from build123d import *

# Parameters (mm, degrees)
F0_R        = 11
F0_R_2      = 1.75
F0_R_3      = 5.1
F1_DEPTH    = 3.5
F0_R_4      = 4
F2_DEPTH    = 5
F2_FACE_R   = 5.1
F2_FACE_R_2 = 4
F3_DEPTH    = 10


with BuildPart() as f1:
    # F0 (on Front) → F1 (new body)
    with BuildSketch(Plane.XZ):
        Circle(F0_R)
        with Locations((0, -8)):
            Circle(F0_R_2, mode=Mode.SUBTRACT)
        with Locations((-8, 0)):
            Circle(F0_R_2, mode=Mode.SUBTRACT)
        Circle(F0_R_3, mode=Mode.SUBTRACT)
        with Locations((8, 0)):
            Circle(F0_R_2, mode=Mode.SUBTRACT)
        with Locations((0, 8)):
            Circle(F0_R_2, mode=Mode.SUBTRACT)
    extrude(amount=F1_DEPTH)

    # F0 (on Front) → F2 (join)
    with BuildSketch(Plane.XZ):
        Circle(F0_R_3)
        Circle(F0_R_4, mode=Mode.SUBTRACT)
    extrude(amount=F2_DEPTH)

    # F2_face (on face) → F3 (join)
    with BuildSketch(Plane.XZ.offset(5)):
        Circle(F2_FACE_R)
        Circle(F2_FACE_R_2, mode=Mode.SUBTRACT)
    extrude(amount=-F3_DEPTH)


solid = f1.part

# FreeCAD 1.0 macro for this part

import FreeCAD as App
import Part
import Sketcher
from FreeCAD import Vector

doc = App.newDocument("Part")
body = doc.addObject("PartDesign::Body", "Body")

# Sketch on XZ plane
sketch1 = body.newObject("Sketcher::SketchObject", "Sketch")
sketch1.AttachmentSupport = (doc.getObject("XZ_Plane"), [""])
sketch1.MapMode = "FlatFace"
sketch1.addGeometry([
    Part.Circle(Vector(0, 0, 0), Vector(0, 0, 1), 11),  # 0
    Part.Circle(Vector(0, -8, 0), Vector(0, 0, 1), 1.8),  # 1
    Part.Circle(Vector(-8, 0, 0), Vector(0, 0, 1), 1.8),  # 2
    Part.Circle(Vector(0, 0, 0), Vector(0, 0, 1), 5.1),  # 3
    Part.Circle(Vector(8, 0, 0), Vector(0, 0, 1), 1.8),  # 4
    Part.Circle(Vector(0, 8, 0), Vector(0, 0, 1), 1.8),  # 5
], False)
sketch1.addConstraint([
    Sketcher.Constraint("Coincident", 0, 3, -1, 1),
    Sketcher.Constraint("Coincident", 3, 3, -1, 1),
    Sketcher.Constraint("Equal", 1, 2),
    Sketcher.Constraint("Equal", 2, 4),
    Sketcher.Constraint("Equal", 4, 5),
    Sketcher.Constraint("Symmetric", 2, 3, 4, 3, -1, 1),
    Sketcher.Constraint("Symmetric", 1, 3, 5, 3, -1, 1),
    Sketcher.Constraint("PointOnObject", 1, 3, -2),
    Sketcher.Constraint("PointOnObject", 2, 3, -1),
    Sketcher.Constraint("Diameter", 0, 22.0),
    Sketcher.Constraint("Diameter", 1, 3.5),
    Sketcher.Constraint("Diameter", 3, 10.2),
    Sketcher.Constraint("DistanceY", 1, 3, -1, 1, 8.0),
    Sketcher.Constraint("DistanceX", 2, 3, -1, 1, 8.0),
])
pad1 = body.newObject("PartDesign::Pad", "Pad")
pad1.Profile = sketch1
pad1.Length = 3.5

# Sketch on XZ plane
sketch2 = body.newObject("Sketcher::SketchObject", "Sketch001")
sketch2.AttachmentSupport = (doc.getObject("XZ_Plane"), [""])
sketch2.MapMode = "FlatFace"
sketch2.addGeometry([
    Part.Circle(Vector(0, 0, 0), Vector(0, 0, 1), 5.1),
    Part.Circle(Vector(0, 0, 0), Vector(0, 0, 1), 4),
], False)
sketch2.addConstraint([
    Sketcher.Constraint("Coincident", 0, 3, -1, 1),
    Sketcher.Constraint("Coincident", 1, 3, -1, 1),
    Sketcher.Constraint("Diameter", 1, 8.0),
    Sketcher.Constraint("Diameter", 0, 10.2),
])
pad2 = body.newObject("PartDesign::Pad", "Pad001")
pad2.Profile = sketch2
pad2.Length = 5

# Sketch on XZ plane
sketch3 = body.newObject("Sketcher::SketchObject", "Sketch002")
sketch3.AttachmentSupport = (doc.getObject("XZ_Plane"), [""])
sketch3.MapMode = "FlatFace"
sketch3.AttachmentOffset = App.Placement(Vector(0, 0, 5), App.Rotation())
sketch3.addGeometry([
    Part.Circle(Vector(0, 0, 0), Vector(0, 0, 1), 5.1),
    Part.Circle(Vector(0, 0, 0), Vector(0, 0, 1), 4),
], False)
sketch3.addConstraint([
    Sketcher.Constraint("Coincident", 0, 3, -1, 1),
    Sketcher.Constraint("Coincident", 1, 3, -1, 1),
    Sketcher.Constraint("Diameter", 1, 8.0),
    Sketcher.Constraint("Diameter", 0, 10.2),
])
pad3 = body.newObject("PartDesign::Pad", "Pad002")
pad3.Profile = sketch3
pad3.Length = 10
pad3.Reversed = True

doc.recompute()
